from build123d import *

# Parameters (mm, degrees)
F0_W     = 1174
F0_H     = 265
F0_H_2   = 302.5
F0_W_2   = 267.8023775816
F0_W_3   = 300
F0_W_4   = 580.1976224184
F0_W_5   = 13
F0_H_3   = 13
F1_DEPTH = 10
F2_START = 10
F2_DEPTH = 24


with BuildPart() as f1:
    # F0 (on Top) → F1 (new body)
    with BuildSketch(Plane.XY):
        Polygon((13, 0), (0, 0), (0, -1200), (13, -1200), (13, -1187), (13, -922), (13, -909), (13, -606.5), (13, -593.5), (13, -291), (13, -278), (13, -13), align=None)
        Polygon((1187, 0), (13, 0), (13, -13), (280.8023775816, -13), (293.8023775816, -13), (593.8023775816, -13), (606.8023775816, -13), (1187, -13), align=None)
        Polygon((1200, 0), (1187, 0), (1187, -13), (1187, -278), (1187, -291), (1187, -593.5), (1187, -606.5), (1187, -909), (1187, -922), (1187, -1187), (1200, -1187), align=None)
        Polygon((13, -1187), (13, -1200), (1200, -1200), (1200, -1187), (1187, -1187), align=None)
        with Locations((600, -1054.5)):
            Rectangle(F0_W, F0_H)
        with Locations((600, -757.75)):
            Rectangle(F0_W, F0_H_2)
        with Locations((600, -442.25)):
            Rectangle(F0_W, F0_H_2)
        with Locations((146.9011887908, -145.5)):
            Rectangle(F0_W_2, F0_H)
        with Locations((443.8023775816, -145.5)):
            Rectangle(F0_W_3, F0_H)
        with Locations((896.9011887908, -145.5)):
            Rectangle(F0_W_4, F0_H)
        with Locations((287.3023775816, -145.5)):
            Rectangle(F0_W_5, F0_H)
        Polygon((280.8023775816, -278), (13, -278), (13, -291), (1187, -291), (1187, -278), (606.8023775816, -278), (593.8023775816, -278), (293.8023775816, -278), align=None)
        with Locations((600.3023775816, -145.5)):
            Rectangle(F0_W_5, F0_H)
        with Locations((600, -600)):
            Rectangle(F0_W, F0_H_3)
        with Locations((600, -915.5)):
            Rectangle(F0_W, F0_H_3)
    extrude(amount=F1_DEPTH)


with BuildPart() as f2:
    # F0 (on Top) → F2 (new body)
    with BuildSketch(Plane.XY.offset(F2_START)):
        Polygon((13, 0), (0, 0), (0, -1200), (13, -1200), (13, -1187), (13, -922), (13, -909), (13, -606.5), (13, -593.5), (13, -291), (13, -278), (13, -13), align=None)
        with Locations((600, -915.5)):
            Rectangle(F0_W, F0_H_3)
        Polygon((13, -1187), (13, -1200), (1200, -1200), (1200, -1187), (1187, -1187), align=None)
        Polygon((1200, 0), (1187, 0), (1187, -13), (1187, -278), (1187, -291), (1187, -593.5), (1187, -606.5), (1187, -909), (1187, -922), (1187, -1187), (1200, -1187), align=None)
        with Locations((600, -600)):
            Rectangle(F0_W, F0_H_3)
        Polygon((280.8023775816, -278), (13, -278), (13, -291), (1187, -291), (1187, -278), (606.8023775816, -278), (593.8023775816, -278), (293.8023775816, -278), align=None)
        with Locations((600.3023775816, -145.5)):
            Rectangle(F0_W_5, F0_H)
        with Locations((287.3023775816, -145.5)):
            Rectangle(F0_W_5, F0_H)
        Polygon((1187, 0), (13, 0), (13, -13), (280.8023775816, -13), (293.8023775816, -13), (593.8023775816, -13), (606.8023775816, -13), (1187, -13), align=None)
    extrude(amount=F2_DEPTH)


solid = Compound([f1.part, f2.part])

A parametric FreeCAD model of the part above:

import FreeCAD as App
import Part
import Sketcher

V = App.Vector
Q = App.Units.Quantity


def add_polygon(sketch, points):
    """Adds a closed chain of lines whose ends are joined by coincident constraints."""
    first, n = sketch.GeometryCount, len(points)
    for a, b in zip(points, points[1:] + points[:1]):
        sketch.addGeometry(Part.LineSegment(App.Vector(*a, 0), App.Vector(*b, 0)), False)
    for i in range(n):
        sketch.addConstraint(Sketcher.Constraint("Coincident", first + i, 2, first + (i + 1) % n, 1))

doc = App.newDocument("Part")
params = doc.addObject("Spreadsheet::Sheet", "Params")
for row, (alias, value) in enumerate([
    ("sketch1_width", "1200 mm"),
    ("pad1_length", "10 mm"),
    ("sketch2_width", "1200 mm"),
    ("sketch2_width2", "300 mm"),
    ("sketch2_width3", "1174 mm"),
    ("sketch2_height", "265 mm"),
    ("sketch2_height2", "302.5 mm"),
    ("pad2_length", "24 mm"),
], start=1):
    params.set(f"A{row}", alias)
    params.set(f"B{row}", "=" + value)
    params.setAlias(f"B{row}", alias)

body = doc.addObject("PartDesign::Body", "Body")

sketch1 = body.newObject("Sketcher::SketchObject", "Sketch")
sketch1.AttachmentSupport = (doc.getObject("XY_Plane"), [""])
sketch1.MapMode = "FlatFace"
add_polygon(sketch1, [(0, 0), (0, -1200), (1200, -1200), (1200, 0)])
sketch1.addConstraint(Sketcher.Constraint("Vertical", 0))
sketch1.addConstraint(Sketcher.Constraint("Horizontal", 1))
sketch1.addConstraint(Sketcher.Constraint("Vertical", 2))
sketch1.addConstraint(Sketcher.Constraint("Horizontal", 3))
sketch1.addConstraint(Sketcher.Constraint("Coincident", 3, 2, -1, 1))
sketch1.addConstraint(Sketcher.Constraint("Equal", 3, 0))
sketch1.addConstraint(Sketcher.Constraint("DistanceX", 1, 1, 1, 2, Q("1200 mm")))
sketch1.setExpression("Constraints[10]", "Params.sketch1_width")
pad1 = body.newObject("PartDesign::Pad", "Pad")
pad1.Profile = sketch1
pad1.setExpression("Length", "Params.pad1_length")
body2 = doc.addObject("PartDesign::Body", "Body001")

sketch2 = body2.newObject("Sketcher::SketchObject", "Sketch001")
sketch2.AttachmentSupport = (doc.getObject("XY_Plane001"), [""])
sketch2.MapMode = "FlatFace"
sketch2.AttachmentOffset = App.Placement(V(0, 0, 10), App.Rotation())
add_polygon(sketch2, [(0, 0), (0, -1200), (1200, -1200), (1200, 0)])
add_polygon(sketch2, [(1187, -13), (1187, -278), (606.802378, -278), (606.802378, -13)])
add_polygon(sketch2, [(593.802378, -13), (593.802378, -278), (293.802378, -278), (293.802378, -13)])
add_polygon(sketch2, [(280.802378, -13), (280.802378, -278), (13, -278), (13, -13)])
add_polygon(sketch2, [(1187, -291), (1187, -593.5), (13, -593.5), (13, -291)])
add_polygon(sketch2, [(1187, -606.5), (1187, -909), (13, -909), (13, -606.5)])
add_polygon(sketch2, [(1187, -1187), (13, -1187), (13, -922), (1187, -922)])
sketch2.addConstraint(Sketcher.Constraint("Vertical", 0))
sketch2.addConstraint(Sketcher.Constraint("Horizontal", 1))
sketch2.addConstraint(Sketcher.Constraint("Vertical", 2))
sketch2.addConstraint(Sketcher.Constraint("Horizontal", 3))
sketch2.addConstraint(Sketcher.Constraint("Vertical", 4))
sketch2.addConstraint(Sketcher.Constraint("Horizontal", 5))
sketch2.addConstraint(Sketcher.Constraint("Vertical", 6))
sketch2.addConstraint(Sketcher.Constraint("Horizontal", 7))
sketch2.addConstraint(Sketcher.Constraint("Vertical", 8))
sketch2.addConstraint(Sketcher.Constraint("Horizontal", 9))
sketch2.addConstraint(Sketcher.Constraint("Vertical", 10))
sketch2.addConstraint(Sketcher.Constraint("Horizontal", 11))
sketch2.addConstraint(Sketcher.Constraint("Vertical", 12))
sketch2.addConstraint(Sketcher.Constraint("Horizontal", 13))
sketch2.addConstraint(Sketcher.Constraint("Vertical", 14))
sketch2.addConstraint(Sketcher.Constraint("Horizontal", 15))
sketch2.addConstraint(Sketcher.Constraint("Vertical", 16))
sketch2.addConstraint(Sketcher.Constraint("Horizontal", 17))
sketch2.addConstraint(Sketcher.Constraint("Vertical", 18))
sketch2.addConstraint(Sketcher.Constraint("Horizontal", 19))
sketch2.addConstraint(Sketcher.Constraint("Vertical", 20))
sketch2.addConstraint(Sketcher.Constraint("Horizontal", 21))
sketch2.addConstraint(Sketcher.Constraint("Vertical", 22))
sketch2.addConstraint(Sketcher.Constraint("Horizontal", 23))
sketch2.addConstraint(Sketcher.Constraint("Horizontal", 24))
sketch2.addConstraint(Sketcher.Constraint("Vertical", 25))
sketch2.addConstraint(Sketcher.Constraint("Horizontal", 26))
sketch2.addConstraint(Sketcher.Constraint("Vertical", 27))
sketch2.addConstraint(Sketcher.Constraint("Coincident", 3, 2, -1, 1))
sketch2.addConstraint(Sketcher.Constraint("Horizontal", 5, 2, 8, 2))
sketch2.addConstraint(Sketcher.Constraint("Horizontal", 7, 2, 10, 2))
sketch2.addConstraint(Sketcher.Constraint("Horizontal", 9, 2, 12, 2))
sketch2.addConstraint(Sketcher.Constraint("Horizontal", 11, 2, 14, 2))
sketch2.addConstraint(Sketcher.Constraint("Vertical", 7, 2, 16, 2))
sketch2.addConstraint(Sketcher.Constraint("Vertical", 14, 2, 17, 2))
sketch2.addConstraint(Sketcher.Constraint("Vertical", 19, 2, 20, 2))
sketch2.addConstraint(Sketcher.Constraint("Vertical", 18, 2, 21, 2))
sketch2.addConstraint(Sketcher.Constraint("Vertical", 22, 2, 24, 2))
sketch2.addConstraint(Sketcher.Constraint("Vertical", 23, 2, 26, 2))
sketch2.addConstraint(Sketcher.Constraint("Equal", 3, 0))
sketch2.addConstraint(Sketcher.Constraint("Equal", 18, 20))
sketch2.addConstraint(Sketcher.Constraint("Equal", 14, 25))
sketch2.addConstraint(Sketcher.Constraint("DistanceX", 1, 1, 1, 2, Q("1200 mm")))
sketch2.addConstraint(Sketcher.Constraint("DistanceX", 9, 2, 9, 1, Q("300 mm")))
sketch2.addConstraint(Sketcher.Constraint("DistanceX", 17, 2, 17, 1, Q("1174 mm")))
sketch2.addConstraint(Sketcher.Constraint("DistanceY", 4, 2, 4, 1, Q("265 mm")))
sketch2.addConstraint(Sketcher.Constraint("DistanceY", 16, 2, 16, 1, Q("302.5 mm")))
sketch2.addConstraint(Sketcher.Constraint("DistanceX", -1, 1, 4, 2, Q("1187 mm")))
sketch2.addConstraint(Sketcher.Constraint("DistanceY", 4, 2, -1, 1, Q("278 mm")))
sketch2.addConstraint(Sketcher.Constraint("DistanceY", 18, 2, -1, 1, Q("291 mm")))
sketch2.addConstraint(Sketcher.Constraint("DistanceY", 20, 2, -1, 1, Q("909 mm")))
sketch2.addConstraint(Sketcher.Constraint("DistanceY", 24, 2, -1, 1, Q("1187 mm")))
sketch2.addConstraint(Sketcher.Constraint("DistanceX", 8, 2, 5, 2, Q("13 mm")))
sketch2.addConstraint(Sketcher.Constraint("DistanceX", 12, 2, 9, 2, Q("13 mm")))
sketch2.addConstraint(Sketcher.Constraint("DistanceX", 5, 2, 5, 1, Q("580.197622 mm")))
sketch2.setExpression("Constraints[70]", "Params.sketch2_width")
sketch2.setExpression("Constraints[71]", "Params.sketch2_width2")
sketch2.setExpression("Constraints[72]", "Params.sketch2_width3")
sketch2.setExpression("Constraints[73]", "Params.sketch2_height")
sketch2.setExpression("Constraints[74]", "Params.sketch2_height2")
pad2 = body2.newObject("PartDesign::Pad", "Pad001")
pad2.Profile = sketch2
pad2.setExpression("Length", "Params.pad2_length")

doc.recompute()
